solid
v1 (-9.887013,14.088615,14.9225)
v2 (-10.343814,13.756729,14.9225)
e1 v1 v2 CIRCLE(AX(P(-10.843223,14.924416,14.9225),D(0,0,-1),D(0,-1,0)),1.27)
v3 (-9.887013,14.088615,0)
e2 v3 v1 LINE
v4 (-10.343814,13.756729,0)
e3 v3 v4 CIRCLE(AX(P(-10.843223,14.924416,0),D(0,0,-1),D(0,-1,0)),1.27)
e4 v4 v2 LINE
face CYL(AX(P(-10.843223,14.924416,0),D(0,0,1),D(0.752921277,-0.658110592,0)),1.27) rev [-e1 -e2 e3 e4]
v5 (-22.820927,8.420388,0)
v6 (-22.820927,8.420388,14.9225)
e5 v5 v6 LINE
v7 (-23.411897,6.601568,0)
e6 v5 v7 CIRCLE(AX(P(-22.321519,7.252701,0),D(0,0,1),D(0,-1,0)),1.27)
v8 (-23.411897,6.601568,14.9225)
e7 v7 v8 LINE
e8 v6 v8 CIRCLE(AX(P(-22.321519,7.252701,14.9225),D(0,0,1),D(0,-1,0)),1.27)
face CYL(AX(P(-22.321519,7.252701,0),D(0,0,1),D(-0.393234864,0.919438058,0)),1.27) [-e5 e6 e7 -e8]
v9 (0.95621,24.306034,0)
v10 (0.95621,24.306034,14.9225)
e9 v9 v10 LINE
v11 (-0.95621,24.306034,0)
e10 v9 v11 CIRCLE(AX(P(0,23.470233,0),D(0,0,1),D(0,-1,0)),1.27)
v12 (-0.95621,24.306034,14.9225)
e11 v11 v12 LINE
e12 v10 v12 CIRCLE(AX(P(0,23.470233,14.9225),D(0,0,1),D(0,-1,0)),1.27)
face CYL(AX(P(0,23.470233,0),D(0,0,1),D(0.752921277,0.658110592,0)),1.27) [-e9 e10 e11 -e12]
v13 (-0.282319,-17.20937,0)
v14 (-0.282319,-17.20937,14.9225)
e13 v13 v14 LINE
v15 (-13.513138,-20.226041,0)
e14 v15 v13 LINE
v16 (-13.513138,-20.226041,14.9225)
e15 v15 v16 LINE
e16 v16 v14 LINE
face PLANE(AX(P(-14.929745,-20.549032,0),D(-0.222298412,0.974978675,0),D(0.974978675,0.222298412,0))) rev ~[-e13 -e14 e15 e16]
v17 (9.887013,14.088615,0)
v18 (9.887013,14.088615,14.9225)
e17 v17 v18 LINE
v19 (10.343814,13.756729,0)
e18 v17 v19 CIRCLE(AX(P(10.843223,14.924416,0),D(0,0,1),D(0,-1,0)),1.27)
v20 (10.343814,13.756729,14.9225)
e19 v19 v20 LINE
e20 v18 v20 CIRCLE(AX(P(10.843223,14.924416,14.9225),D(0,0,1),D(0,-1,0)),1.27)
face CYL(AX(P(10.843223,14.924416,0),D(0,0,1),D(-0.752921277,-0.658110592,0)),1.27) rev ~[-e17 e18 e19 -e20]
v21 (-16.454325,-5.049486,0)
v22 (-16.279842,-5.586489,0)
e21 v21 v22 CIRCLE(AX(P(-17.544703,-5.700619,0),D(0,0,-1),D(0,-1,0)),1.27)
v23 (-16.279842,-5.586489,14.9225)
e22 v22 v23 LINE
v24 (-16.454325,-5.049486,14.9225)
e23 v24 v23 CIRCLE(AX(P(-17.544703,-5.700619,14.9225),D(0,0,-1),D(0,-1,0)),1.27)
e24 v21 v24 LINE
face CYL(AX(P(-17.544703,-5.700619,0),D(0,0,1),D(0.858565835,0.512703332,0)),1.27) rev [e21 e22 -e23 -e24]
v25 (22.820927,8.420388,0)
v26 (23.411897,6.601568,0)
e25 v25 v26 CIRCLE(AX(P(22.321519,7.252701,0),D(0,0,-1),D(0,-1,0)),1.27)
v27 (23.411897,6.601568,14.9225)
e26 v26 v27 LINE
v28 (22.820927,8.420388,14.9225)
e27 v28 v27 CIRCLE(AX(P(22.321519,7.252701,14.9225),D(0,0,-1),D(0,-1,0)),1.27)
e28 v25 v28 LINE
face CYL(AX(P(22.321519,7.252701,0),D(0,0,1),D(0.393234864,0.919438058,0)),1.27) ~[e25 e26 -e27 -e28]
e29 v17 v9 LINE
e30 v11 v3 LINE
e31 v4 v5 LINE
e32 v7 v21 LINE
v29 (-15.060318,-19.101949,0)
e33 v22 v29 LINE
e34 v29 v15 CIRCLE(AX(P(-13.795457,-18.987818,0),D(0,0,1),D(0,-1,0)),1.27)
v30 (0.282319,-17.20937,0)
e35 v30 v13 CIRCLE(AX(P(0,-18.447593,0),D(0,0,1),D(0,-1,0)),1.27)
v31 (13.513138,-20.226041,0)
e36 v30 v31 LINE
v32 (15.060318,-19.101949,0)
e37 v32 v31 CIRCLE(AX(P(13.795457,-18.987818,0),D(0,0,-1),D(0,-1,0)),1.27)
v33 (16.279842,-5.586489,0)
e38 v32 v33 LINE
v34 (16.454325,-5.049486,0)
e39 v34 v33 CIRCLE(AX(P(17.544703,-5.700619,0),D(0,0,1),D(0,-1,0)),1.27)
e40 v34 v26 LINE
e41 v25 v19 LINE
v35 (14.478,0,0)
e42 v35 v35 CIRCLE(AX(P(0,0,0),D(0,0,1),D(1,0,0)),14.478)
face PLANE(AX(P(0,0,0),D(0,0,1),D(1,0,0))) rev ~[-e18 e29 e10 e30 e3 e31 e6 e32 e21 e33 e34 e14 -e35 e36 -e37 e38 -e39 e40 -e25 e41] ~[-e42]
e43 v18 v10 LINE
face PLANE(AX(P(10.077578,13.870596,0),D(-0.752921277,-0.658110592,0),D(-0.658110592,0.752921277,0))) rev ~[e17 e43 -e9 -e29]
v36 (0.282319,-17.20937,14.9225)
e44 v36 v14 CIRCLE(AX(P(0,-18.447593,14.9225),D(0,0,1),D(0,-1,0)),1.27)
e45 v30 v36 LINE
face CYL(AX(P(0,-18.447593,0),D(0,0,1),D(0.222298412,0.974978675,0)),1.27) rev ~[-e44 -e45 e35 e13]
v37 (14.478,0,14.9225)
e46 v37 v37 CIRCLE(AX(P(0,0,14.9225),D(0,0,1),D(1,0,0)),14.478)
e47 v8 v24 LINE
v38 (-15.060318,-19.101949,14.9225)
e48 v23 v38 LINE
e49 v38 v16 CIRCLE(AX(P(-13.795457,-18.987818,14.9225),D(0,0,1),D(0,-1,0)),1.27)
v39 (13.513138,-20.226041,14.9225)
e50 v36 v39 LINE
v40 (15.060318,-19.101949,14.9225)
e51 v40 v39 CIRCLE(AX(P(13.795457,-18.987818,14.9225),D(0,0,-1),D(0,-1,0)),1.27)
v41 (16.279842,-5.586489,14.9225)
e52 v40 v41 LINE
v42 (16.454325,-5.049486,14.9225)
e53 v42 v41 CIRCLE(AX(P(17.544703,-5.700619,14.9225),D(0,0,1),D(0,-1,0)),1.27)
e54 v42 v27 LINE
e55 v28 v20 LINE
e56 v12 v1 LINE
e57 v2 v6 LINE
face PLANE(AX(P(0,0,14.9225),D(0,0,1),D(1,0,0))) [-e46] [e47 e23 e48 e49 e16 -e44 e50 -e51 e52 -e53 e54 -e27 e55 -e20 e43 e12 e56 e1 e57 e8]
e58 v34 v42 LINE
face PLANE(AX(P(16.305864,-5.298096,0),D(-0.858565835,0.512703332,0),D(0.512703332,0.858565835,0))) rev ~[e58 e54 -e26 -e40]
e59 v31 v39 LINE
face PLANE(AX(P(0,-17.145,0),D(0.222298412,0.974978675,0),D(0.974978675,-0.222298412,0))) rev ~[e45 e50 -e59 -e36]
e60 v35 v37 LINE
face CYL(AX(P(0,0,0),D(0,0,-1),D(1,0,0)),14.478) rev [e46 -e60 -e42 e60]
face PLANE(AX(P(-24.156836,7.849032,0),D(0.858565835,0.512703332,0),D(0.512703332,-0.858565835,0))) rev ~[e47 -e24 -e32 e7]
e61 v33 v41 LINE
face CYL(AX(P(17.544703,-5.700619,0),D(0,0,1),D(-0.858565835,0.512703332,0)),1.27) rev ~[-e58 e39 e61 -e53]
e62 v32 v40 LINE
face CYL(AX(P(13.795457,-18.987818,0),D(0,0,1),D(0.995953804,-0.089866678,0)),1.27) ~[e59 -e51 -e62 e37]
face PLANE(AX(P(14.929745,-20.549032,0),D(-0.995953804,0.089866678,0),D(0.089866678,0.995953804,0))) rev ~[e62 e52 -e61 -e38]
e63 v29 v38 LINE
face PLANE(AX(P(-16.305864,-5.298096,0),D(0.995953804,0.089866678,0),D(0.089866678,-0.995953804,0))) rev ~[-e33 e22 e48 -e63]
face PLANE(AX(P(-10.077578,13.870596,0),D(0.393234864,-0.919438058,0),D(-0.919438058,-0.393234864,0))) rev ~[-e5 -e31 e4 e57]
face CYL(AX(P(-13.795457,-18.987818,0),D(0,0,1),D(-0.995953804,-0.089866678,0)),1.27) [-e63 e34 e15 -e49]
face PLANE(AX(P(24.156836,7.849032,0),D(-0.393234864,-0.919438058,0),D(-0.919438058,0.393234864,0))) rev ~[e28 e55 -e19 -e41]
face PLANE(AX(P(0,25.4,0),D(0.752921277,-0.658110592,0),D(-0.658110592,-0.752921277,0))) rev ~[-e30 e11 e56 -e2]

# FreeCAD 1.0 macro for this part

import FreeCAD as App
import Part
import Sketcher
from FreeCAD import Vector
Q = App.Units.Quantity


def edges_at(feature, points):
    """Names of the edges that pass closest to the given points."""
    edges = feature.Shape.Edges
    near = lambda p: min(range(len(edges)), key=lambda i: edges[i].distToShape(Part.Vertex(*p))[0])
    return sorted({f"Edge{near(p) + 1}" for p in points})

doc = App.newDocument("Part")
body = doc.addObject("PartDesign::Body", "Body")

# Sketch on XY plane
sketch1 = body.newObject("Sketcher::SketchObject", "Sketch")
sketch1.AttachmentSupport = (doc.getObject("XY_Plane"), [""])
sketch1.MapMode = "FlatFace"
sketch1.addGeometry(Part.LineSegment(Vector(10.077578, 13.870596, 0), Vector(0, 25.4, 0)), False)
sketch1.addGeometry(Part.LineSegment(Vector(0, 25.4, 0), Vector(-10.077578, 13.870596, 0)), False)
sketch1.addGeometry(Part.LineSegment(Vector(-10.077578, 13.870596, 0), Vector(-24.156836, 7.849032, 0)), False)
sketch1.addGeometry(Part.LineSegment(Vector(-24.156836, 7.849032, 0), Vector(-16.305864, -5.298096, 0)), False)
sketch1.addGeometry(Part.LineSegment(Vector(-16.305864, -5.298096, 0), Vector(-14.929745, -20.549032, 0)), False)
sketch1.addGeometry(Part.LineSegment(Vector(-14.929745, -20.549032, 0), Vector(0, -17.145, 0)), False)
sketch1.addGeometry(Part.LineSegment(Vector(0, -17.145, 0), Vector(14.929745, -20.549032, 0)), False)
sketch1.addGeometry(Part.LineSegment(Vector(14.929745, -20.549032, 0), Vector(16.305864, -5.298096, 0)), False)
sketch1.addGeometry(Part.LineSegment(Vector(16.305864, -5.298096, 0), Vector(24.156836, 7.849032, 0)), False)
sketch1.addGeometry(Part.LineSegment(Vector(24.156836, 7.849032, 0), Vector(10.077578, 13.870596, 0)), False)
sketch1.addGeometry(Part.Circle(Vector(0, 0, 0), Vector(0, 0, 1), 14.478), False)
sketch1.addConstraint(Sketcher.Constraint("Coincident", 0, 2, 1, 1))
sketch1.addConstraint(Sketcher.Constraint("Coincident", 1, 2, 2, 1))
sketch1.addConstraint(Sketcher.Constraint("Coincident", 2, 2, 3, 1))
sketch1.addConstraint(Sketcher.Constraint("Coincident", 3, 2, 4, 1))
sketch1.addConstraint(Sketcher.Constraint("Coincident", 4, 2, 5, 1))
sketch1.addConstraint(Sketcher.Constraint("Coincident", 5, 2, 6, 1))
sketch1.addConstraint(Sketcher.Constraint("Coincident", 6, 2, 7, 1))
sketch1.addConstraint(Sketcher.Constraint("Coincident", 7, 2, 8, 1))
sketch1.addConstraint(Sketcher.Constraint("Coincident", 8, 2, 9, 1))
sketch1.addConstraint(Sketcher.Constraint("Coincident", 9, 2, 0, 1))
sketch1.addConstraint(Sketcher.Constraint("Coincident", 10, 3, -1, 1))
sketch1.addConstraint(Sketcher.Constraint("Symmetric", 4, 2, 6, 2, -2))
sketch1.addConstraint(Sketcher.Constraint("Symmetric", 3, 2, 7, 2, -2))
sketch1.addConstraint(Sketcher.Constraint("Symmetric", 2, 2, 8, 2, -2))
sketch1.addConstraint(Sketcher.Constraint("Symmetric", 1, 2, 9, 2, -2))
sketch1.addConstraint(Sketcher.Constraint("PointOnObject", 0, 2, -2))
sketch1.addConstraint(Sketcher.Constraint("PointOnObject", 5, 2, -2))
sketch1.addConstraint(Sketcher.Constraint("Equal", 1, 2))
sketch1.addConstraint(Sketcher.Constraint("Equal", 2, 3))
sketch1.addConstraint(Sketcher.Constraint("Equal", 3, 4))
sketch1.addConstraint(Sketcher.Constraint("Equal", 4, 5))
sketch1.addConstraint(Sketcher.Constraint("Diameter", 10, Q("1.14 in")))
sketch1.addConstraint(Sketcher.Constraint("DistanceY", -1, 1, 0, 2, Q("1 in")))
sketch1.addConstraint(Sketcher.Constraint("DistanceY", 5, 2, -1, 1, Q("0.675 in")))
sketch1.addConstraint(Sketcher.Constraint("DistanceX", 1, 2, -1, 1, 10.077578))
sketch1.addConstraint(Sketcher.Constraint("DistanceX", 2, 2, 3, 2, 7.850972))
sketch1.addConstraint(Sketcher.Constraint("DistanceY", 3, 2, 1, 2, 19.168692))
sketch1.addConstraint(Sketcher.Constraint("DistanceX", 3, 2, 4, 2, 1.376119))
pad1 = body.newObject("PartDesign::Pad", "Pad")
pad1.Profile = sketch1
pad1.Length = Q("0.5875 in")
doc.recompute()

fillet = body.newObject("PartDesign::Fillet", "Fillet")
fillet.Base = (pad1, edges_at(pad1, [
    (-14.93, -20.549, 7.461),
    (14.93, -20.549, 7.461),
    (-24.157, 7.849, 7.461),
    (24.157, 7.849, 7.461),
    (0, 25.4, 7.461),
    (-16.306, -5.298, 7.461),
    (0, -17.145, 7.461),
    (16.306, -5.298, 7.461),
    (10.078, 13.871, 7.461),
    (-10.078, 13.871, 7.461),
]))
fillet.Radius = Q("0.05 in")

doc.recompute()
